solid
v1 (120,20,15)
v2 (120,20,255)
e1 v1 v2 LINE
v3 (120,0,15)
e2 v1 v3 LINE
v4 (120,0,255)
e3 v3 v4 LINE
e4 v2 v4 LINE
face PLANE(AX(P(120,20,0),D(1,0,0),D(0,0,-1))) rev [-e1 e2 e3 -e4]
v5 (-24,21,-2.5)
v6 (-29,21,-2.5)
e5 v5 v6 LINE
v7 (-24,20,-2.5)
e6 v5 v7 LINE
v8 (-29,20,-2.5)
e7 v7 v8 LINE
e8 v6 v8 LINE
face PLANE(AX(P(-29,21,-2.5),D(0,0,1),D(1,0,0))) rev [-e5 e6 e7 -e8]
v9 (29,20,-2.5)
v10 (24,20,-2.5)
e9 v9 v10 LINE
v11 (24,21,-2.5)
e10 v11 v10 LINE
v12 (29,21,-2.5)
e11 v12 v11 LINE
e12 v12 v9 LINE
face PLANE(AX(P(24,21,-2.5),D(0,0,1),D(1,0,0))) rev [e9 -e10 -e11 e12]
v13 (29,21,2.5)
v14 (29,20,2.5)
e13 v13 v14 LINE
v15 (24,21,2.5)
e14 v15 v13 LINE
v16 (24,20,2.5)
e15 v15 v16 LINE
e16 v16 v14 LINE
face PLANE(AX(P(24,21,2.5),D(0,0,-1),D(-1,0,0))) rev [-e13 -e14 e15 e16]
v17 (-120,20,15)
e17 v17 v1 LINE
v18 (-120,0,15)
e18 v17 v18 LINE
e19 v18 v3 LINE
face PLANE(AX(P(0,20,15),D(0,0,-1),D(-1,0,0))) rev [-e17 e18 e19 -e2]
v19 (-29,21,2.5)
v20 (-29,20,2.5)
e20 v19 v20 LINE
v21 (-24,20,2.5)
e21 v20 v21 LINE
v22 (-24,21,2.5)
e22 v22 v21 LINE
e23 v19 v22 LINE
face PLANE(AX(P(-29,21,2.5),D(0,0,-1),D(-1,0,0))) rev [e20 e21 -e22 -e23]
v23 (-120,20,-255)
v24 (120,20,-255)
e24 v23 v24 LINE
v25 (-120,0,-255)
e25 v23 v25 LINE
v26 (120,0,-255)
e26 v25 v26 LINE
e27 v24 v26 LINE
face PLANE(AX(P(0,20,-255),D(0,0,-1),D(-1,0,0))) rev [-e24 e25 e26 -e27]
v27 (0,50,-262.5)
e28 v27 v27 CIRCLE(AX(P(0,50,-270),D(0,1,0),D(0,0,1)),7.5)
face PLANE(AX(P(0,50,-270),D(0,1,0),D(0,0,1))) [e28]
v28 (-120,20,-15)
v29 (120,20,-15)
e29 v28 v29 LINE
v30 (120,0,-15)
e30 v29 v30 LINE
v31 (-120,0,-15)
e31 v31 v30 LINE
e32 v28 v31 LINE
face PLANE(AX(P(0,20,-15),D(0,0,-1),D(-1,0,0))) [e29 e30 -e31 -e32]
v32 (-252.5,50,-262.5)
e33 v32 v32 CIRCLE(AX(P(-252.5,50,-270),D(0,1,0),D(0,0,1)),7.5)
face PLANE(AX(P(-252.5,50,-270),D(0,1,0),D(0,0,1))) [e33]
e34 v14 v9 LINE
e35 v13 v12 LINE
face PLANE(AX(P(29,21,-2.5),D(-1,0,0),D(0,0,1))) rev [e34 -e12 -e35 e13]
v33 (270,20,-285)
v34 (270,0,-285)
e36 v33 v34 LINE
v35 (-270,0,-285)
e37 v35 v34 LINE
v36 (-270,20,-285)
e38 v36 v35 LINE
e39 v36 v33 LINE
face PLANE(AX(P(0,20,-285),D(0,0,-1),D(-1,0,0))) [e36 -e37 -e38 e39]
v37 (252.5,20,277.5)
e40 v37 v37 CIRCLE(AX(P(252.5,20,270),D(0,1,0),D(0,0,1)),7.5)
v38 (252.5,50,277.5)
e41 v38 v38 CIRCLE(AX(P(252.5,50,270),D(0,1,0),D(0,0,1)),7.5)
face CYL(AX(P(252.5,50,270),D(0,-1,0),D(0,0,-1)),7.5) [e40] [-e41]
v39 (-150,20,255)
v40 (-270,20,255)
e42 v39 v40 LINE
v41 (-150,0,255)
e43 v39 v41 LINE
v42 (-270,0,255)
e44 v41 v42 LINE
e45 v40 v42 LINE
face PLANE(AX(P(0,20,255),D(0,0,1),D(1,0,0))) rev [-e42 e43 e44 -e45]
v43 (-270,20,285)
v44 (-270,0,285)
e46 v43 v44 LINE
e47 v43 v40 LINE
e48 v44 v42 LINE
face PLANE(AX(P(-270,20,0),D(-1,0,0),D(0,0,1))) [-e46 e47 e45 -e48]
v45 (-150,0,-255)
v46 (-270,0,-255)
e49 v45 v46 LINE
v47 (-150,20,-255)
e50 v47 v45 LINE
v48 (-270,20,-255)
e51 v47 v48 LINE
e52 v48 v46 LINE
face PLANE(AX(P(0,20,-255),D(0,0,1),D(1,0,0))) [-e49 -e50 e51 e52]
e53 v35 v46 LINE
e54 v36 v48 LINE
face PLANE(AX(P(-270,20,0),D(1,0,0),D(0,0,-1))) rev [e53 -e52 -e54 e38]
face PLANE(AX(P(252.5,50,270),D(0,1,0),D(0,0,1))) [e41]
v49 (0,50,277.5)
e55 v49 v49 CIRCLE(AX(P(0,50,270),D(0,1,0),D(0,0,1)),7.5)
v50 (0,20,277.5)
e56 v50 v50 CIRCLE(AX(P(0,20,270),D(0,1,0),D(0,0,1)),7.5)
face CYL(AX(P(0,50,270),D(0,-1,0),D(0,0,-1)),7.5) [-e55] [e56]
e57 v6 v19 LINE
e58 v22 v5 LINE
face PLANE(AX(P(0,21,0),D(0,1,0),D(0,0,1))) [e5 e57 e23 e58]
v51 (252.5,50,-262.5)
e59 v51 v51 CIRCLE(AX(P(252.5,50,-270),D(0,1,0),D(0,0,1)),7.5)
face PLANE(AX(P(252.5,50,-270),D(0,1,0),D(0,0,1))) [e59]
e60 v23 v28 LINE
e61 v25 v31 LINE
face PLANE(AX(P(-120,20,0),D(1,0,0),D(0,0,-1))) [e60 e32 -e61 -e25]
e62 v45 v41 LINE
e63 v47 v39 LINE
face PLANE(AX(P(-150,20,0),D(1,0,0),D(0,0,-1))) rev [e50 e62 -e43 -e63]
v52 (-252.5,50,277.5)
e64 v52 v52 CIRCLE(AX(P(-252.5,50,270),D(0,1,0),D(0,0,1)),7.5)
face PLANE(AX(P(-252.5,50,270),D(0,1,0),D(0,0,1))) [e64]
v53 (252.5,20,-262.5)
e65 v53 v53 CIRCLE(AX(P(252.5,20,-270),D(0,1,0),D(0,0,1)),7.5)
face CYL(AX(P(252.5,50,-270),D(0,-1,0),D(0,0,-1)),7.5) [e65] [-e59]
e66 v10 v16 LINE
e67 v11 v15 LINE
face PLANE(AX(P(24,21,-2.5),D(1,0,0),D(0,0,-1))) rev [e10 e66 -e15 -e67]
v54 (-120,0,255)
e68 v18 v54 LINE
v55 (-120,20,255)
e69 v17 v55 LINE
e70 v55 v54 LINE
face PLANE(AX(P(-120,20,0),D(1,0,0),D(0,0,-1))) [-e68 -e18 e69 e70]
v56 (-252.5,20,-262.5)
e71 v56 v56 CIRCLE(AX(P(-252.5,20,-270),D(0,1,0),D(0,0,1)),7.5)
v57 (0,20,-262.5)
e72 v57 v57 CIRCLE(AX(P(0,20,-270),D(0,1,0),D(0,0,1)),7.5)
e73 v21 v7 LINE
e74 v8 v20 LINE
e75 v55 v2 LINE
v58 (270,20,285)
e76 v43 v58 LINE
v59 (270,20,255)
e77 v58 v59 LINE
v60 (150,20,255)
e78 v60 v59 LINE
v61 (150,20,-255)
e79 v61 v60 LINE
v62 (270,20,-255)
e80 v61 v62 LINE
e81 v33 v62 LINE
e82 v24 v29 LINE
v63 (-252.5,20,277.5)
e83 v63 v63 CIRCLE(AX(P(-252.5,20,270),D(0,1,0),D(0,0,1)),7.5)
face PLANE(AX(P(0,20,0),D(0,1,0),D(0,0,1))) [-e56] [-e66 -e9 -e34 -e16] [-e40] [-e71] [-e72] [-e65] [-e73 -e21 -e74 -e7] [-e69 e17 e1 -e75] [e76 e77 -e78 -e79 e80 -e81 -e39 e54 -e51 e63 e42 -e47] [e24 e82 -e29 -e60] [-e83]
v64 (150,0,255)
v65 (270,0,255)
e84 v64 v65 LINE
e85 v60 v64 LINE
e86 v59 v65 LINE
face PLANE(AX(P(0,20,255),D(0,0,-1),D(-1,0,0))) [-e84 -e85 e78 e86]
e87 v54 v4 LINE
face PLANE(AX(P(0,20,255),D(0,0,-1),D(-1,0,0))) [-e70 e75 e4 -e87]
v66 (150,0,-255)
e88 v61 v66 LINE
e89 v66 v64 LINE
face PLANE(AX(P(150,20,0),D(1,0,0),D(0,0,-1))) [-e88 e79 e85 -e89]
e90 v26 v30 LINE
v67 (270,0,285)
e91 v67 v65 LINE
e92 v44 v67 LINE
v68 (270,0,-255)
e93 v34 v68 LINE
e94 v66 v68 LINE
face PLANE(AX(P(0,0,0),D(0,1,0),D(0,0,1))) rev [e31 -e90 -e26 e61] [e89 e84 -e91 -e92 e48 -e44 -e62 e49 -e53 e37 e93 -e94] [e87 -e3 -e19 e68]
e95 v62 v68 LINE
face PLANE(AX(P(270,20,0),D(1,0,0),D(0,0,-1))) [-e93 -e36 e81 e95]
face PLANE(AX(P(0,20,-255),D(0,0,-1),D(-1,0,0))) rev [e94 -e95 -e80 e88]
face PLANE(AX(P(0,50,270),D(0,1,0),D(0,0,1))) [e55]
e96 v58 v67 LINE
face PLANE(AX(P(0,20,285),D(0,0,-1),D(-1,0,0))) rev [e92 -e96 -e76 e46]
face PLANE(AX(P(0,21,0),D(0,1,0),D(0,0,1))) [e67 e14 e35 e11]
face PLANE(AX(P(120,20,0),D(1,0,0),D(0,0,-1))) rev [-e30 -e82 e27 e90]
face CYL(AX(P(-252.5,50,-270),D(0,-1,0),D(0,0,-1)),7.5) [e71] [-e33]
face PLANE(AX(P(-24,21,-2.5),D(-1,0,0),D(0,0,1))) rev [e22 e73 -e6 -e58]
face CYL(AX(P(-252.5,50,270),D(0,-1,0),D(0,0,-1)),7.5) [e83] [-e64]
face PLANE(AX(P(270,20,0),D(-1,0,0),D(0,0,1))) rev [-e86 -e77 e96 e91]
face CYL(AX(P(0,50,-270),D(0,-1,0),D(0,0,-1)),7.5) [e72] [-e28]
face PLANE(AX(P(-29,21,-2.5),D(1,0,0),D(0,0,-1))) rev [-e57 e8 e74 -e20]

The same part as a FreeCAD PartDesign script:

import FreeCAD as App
import Part
import Sketcher
Q = App.Units.Quantity

doc = App.newDocument("Part")
body = doc.addObject("PartDesign::Body", "Body")

# Sketch on XZ plane
sketch1 = body.newObject("Sketcher::SketchObject", "Sketch")
sketch1.AttachmentSupport = (doc.getObject("XZ_Plane"), [""])
sketch1.MapMode = "FlatFace"
sketch1.addGeometry([
    Part.LineSegment(App.Vector(-150, -285, 0), App.Vector(-150, 285, 0)),  # 0
    Part.LineSegment(App.Vector(-150, 285, 0), App.Vector(150, 285, 0)),  # 1
    Part.LineSegment(App.Vector(150, 285, 0), App.Vector(150, -285, 0)),  # 2
    Part.LineSegment(App.Vector(150, -285, 0), App.Vector(-150, -285, 0)),  # 3
    Part.LineSegment(App.Vector(120, 255, 0), App.Vector(-120, 255, 0)),  # 4
    Part.LineSegment(App.Vector(-120, 255, 0), App.Vector(-120, 15, 0)),  # 5
    Part.LineSegment(App.Vector(-120, 15, 0), App.Vector(120, 15, 0)),  # 6
    Part.LineSegment(App.Vector(120, 15, 0), App.Vector(120, 255, 0)),  # 7
    Part.LineSegment(App.Vector(120, -15, 0), App.Vector(-120, -15, 0)),  # 8
    Part.LineSegment(App.Vector(-120, -15, 0), App.Vector(-120, -255, 0)),  # 9
    Part.LineSegment(App.Vector(-120, -255, 0), App.Vector(120, -255, 0)),  # 10
    Part.LineSegment(App.Vector(120, -255, 0), App.Vector(120, -15, 0)),  # 11
], False)
sketch1.addConstraint([
    Sketcher.Constraint("Coincident", 0, 2, 1, 1),
    Sketcher.Constraint("Coincident", 1, 2, 2, 1),
    Sketcher.Constraint("Coincident", 2, 2, 3, 1),
    Sketcher.Constraint("Coincident", 3, 2, 0, 1),
    Sketcher.Constraint("Coincident", 4, 2, 5, 1),
    Sketcher.Constraint("Coincident", 5, 2, 6, 1),
    Sketcher.Constraint("Coincident", 6, 2, 7, 1),
    Sketcher.Constraint("Coincident", 7, 2, 4, 1),
    Sketcher.Constraint("Coincident", 8, 2, 9, 1),
    Sketcher.Constraint("Coincident", 9, 2, 10, 1),
    Sketcher.Constraint("Coincident", 10, 2, 11, 1),
    Sketcher.Constraint("Coincident", 11, 2, 8, 1),
    Sketcher.Constraint("Vertical", 0),
    Sketcher.Constraint("Horizontal", 1),
    Sketcher.Constraint("Vertical", 2),
    Sketcher.Constraint("Horizontal", 3),
    Sketcher.Constraint("Horizontal", 4),
    Sketcher.Constraint("Vertical", 5),
    Sketcher.Constraint("Horizontal", 6),
    Sketcher.Constraint("Vertical", 7),
    Sketcher.Constraint("Horizontal", 8),
    Sketcher.Constraint("Vertical", 9),
    Sketcher.Constraint("Horizontal", 10),
    Sketcher.Constraint("Vertical", 11),
    Sketcher.Constraint("Symmetric", 0, 2, 2, 2, -1, 1),
    Sketcher.Constraint("Symmetric", 6, 2, 8, 2, -1, 1),
    Sketcher.Constraint("Symmetric", 4, 2, 10, 2, -1, 1),
    Sketcher.Constraint("Vertical", 5, 2, 8, 2),
    Sketcher.Constraint("Equal", 10, 5),
    Sketcher.Constraint("DistanceX", 1, 1, 1, 2, Q("300 mm")),
    Sketcher.Constraint("DistanceX", 4, 2, 4, 1, Q("240 mm")),
    Sketcher.Constraint("DistanceY", 0, 1, 0, 2, Q("570 mm")),
    Sketcher.Constraint("DistanceY", -1, 1, 4, 2, Q("255 mm")),
])
pad1 = body.newObject("PartDesign::Pad", "Pad")
pad1.Profile = sketch1
pad1.Length = 20
pad1.Reversed = True

# Sketch on XZ plane
sketch2 = body.newObject("Sketcher::SketchObject", "Sketch001")
sketch2.AttachmentSupport = (doc.getObject("XZ_Plane"), [""])
sketch2.MapMode = "FlatFace"
sketch2.addGeometry([
    Part.LineSegment(App.Vector(150, -285, 0), App.Vector(150, -255, 0)),  # 0
    Part.LineSegment(App.Vector(150, -255, 0), App.Vector(270, -255, 0)),  # 1
    Part.LineSegment(App.Vector(270, -255, 0), App.Vector(270, -285, 0)),  # 2
    Part.LineSegment(App.Vector(270, -285, 0), App.Vector(150, -285, 0)),  # 3
    Part.LineSegment(App.Vector(-270, -285, 0), App.Vector(-270, -255, 0)),  # 4
    Part.LineSegment(App.Vector(-270, -255, 0), App.Vector(-150, -255, 0)),  # 5
    Part.LineSegment(App.Vector(-150, -255, 0), App.Vector(-150, -285, 0)),  # 6
    Part.LineSegment(App.Vector(-150, -285, 0), App.Vector(-270, -285, 0)),  # 7
    Part.LineSegment(App.Vector(-270, 255, 0), App.Vector(-270, 285, 0)),  # 8
    Part.LineSegment(App.Vector(-270, 285, 0), App.Vector(-150, 285, 0)),  # 9
    Part.LineSegment(App.Vector(-150, 285, 0), App.Vector(-150, 255, 0)),  # 10
    Part.LineSegment(App.Vector(-150, 255, 0), App.Vector(-270, 255, 0)),  # 11
    Part.LineSegment(App.Vector(150, 255, 0), App.Vector(150, 285, 0)),  # 12
    Part.LineSegment(App.Vector(150, 285, 0), App.Vector(270, 285, 0)),  # 13
    Part.LineSegment(App.Vector(270, 285, 0), App.Vector(270, 255, 0)),  # 14
    Part.LineSegment(App.Vector(270, 255, 0), App.Vector(150, 255, 0)),  # 15
], False)
sketch2.addConstraint([
    Sketcher.Constraint("Coincident", 0, 2, 1, 1),
    Sketcher.Constraint("Coincident", 1, 2, 2, 1),
    Sketcher.Constraint("Coincident", 2, 2, 3, 1),
    Sketcher.Constraint("Coincident", 3, 2, 0, 1),
    Sketcher.Constraint("Coincident", 4, 2, 5, 1),
    Sketcher.Constraint("Coincident", 5, 2, 6, 1),
    Sketcher.Constraint("Coincident", 6, 2, 7, 1),
    Sketcher.Constraint("Coincident", 7, 2, 4, 1),
    Sketcher.Constraint("Coincident", 8, 2, 9, 1),
    Sketcher.Constraint("Coincident", 9, 2, 10, 1),
    Sketcher.Constraint("Coincident", 10, 2, 11, 1),
    Sketcher.Constraint("Coincident", 11, 2, 8, 1),
    Sketcher.Constraint("Coincident", 12, 2, 13, 1),
    Sketcher.Constraint("Coincident", 13, 2, 14, 1),
    Sketcher.Constraint("Coincident", 14, 2, 15, 1),
    Sketcher.Constraint("Coincident", 15, 2, 12, 1),
    Sketcher.Constraint("Vertical", 0),
    Sketcher.Constraint("Horizontal", 1),
    Sketcher.Constraint("Vertical", 2),
    Sketcher.Constraint("Horizontal", 3),
    Sketcher.Constraint("Vertical", 4),
    Sketcher.Constraint("Horizontal", 5),
    Sketcher.Constraint("Vertical", 6),
    Sketcher.Constraint("Horizontal", 7),
    Sketcher.Constraint("Vertical", 8),
    Sketcher.Constraint("Horizontal", 9),
    Sketcher.Constraint("Vertical", 10),
    Sketcher.Constraint("Horizontal", 11),
    Sketcher.Constraint("Vertical", 12),
    Sketcher.Constraint("Horizontal", 13),
    Sketcher.Constraint("Vertical", 14),
    Sketcher.Constraint("Horizontal", 15),
    Sketcher.Constraint("Symmetric", 2, 2, 8, 2, -1, 1),
    Sketcher.Constraint("Symmetric", 0, 2, 10, 2, -1, 1),
    Sketcher.Constraint("Symmetric", 6, 2, 12, 2, -1, 1),
    Sketcher.Constraint("Symmetric", 4, 2, 14, 2, -1, 1),
    Sketcher.Constraint("Symmetric", 1, 2, 4, 2, -2),
    Sketcher.Constraint("Symmetric", 3, 2, 6, 2, -2),
    Sketcher.Constraint("DistanceX", 1, 1, 1, 2, Q("120 mm")),
    Sketcher.Constraint("DistanceY", 0, 1, 0, 2, Q("30 mm")),
    Sketcher.Constraint("DistanceX", -1, 1, 0, 2, Q("150 mm")),
    Sketcher.Constraint("DistanceY", 0, 2, -1, 1, Q("255 mm")),
])
pad2 = body.newObject("PartDesign::Pad", "Pad001")
pad2.Profile = sketch2
pad2.Length = 20
pad2.Reversed = True

# Sketch on XZ plane
sketch3 = body.newObject("Sketcher::SketchObject", "Sketch002")
sketch3.AttachmentSupport = (doc.getObject("XZ_Plane"), [""])
sketch3.MapMode = "FlatFace"
sketch3.AttachmentOffset = App.Placement(App.Vector(0, 0, -20), App.Rotation())
sketch3.addGeometry([
    Part.Circle(App.Vector(0, -270, 0), App.Vector(0, 0, 1), 8),  # 0
    Part.Circle(App.Vector(252, -270, 0), App.Vector(0, 0, 1), 8),  # 1
    Part.Circle(App.Vector(-252, -270, 0), App.Vector(0, 0, 1), 8),  # 2
    Part.Circle(App.Vector(-252, 270, 0), App.Vector(0, 0, 1), 8),  # 3
    Part.Circle(App.Vector(252, 270, 0), App.Vector(0, 0, 1), 8),  # 4
    Part.Circle(App.Vector(0, 270, 0), App.Vector(0, 0, 1), 8),  # 5
], False)
sketch3.addConstraint([
    Sketcher.Constraint("Equal", 0, 1),
    Sketcher.Constraint("Equal", 1, 2),
    Sketcher.Constraint("Equal", 2, 3),
    Sketcher.Constraint("Equal", 3, 4),
    Sketcher.Constraint("Equal", 4, 5),
    Sketcher.Constraint("Symmetric", 1, 3, 3, 3, -1, 1),
    Sketcher.Constraint("Symmetric", 2, 3, 4, 3, -1, 1),
    Sketcher.Constraint("Symmetric", 0, 3, 5, 3, -1, 1),
    Sketcher.Constraint("Symmetric", 1, 3, 2, 3, -2),
    Sketcher.Constraint("PointOnObject", 0, 3, -2),
    Sketcher.Constraint("Horizontal", 0, 3, 1, 3),
    Sketcher.Constraint("Diameter", 0, Q("15 mm")),
    Sketcher.Constraint("DistanceY", 0, 3, -1, 1, Q("270 mm")),
    Sketcher.Constraint("DistanceX", 2, 3, 1, 3, Q("505 mm")),
])
pad3 = body.newObject("PartDesign::Pad", "Pad002")
pad3.Profile = sketch3
pad3.Length = 30
pad3.Reversed = True

# Sketch on XZ plane
sketch4 = body.newObject("Sketcher::SketchObject", "Sketch003")
sketch4.AttachmentSupport = (doc.getObject("XZ_Plane"), [""])
sketch4.MapMode = "FlatFace"
sketch4.AttachmentOffset = App.Placement(App.Vector(0, 0, -20), App.Rotation())
sketch4.addGeometry([
    Part.LineSegment(App.Vector(-29, -2, 0), App.Vector(-29, 2, 0)),  # 0
    Part.LineSegment(App.Vector(-29, 2, 0), App.Vector(-24, 2, 0)),  # 1
    Part.LineSegment(App.Vector(-24, 2, 0), App.Vector(-24, -2, 0)),  # 2
    Part.LineSegment(App.Vector(-24, -2, 0), App.Vector(-29, -2, 0)),  # 3
    Part.LineSegment(App.Vector(24, -2, 0), App.Vector(24, 2, 0)),  # 4
    Part.LineSegment(App.Vector(24, 2, 0), App.Vector(29, 2, 0)),  # 5
    Part.LineSegment(App.Vector(29, 2, 0), App.Vector(29, -2, 0)),  # 6
    Part.LineSegment(App.Vector(29, -2, 0), App.Vector(24, -2, 0)),  # 7
], False)
sketch4.addConstraint([
    Sketcher.Constraint("Coincident", 0, 2, 1, 1),
    Sketcher.Constraint("Coincident", 1, 2, 2, 1),
    Sketcher.Constraint("Coincident", 2, 2, 3, 1),
    Sketcher.Constraint("Coincident", 3, 2, 0, 1),
    Sketcher.Constraint("Coincident", 4, 2, 5, 1),
    Sketcher.Constraint("Coincident", 5, 2, 6, 1),
    Sketcher.Constraint("Coincident", 6, 2, 7, 1),
    Sketcher.Constraint("Coincident", 7, 2, 4, 1),
    Sketcher.Constraint("Vertical", 0),
    Sketcher.Constraint("Horizontal", 1),
    Sketcher.Constraint("Vertical", 2),
    Sketcher.Constraint("Horizontal", 3),
    Sketcher.Constraint("Vertical", 4),
    Sketcher.Constraint("Horizontal", 5),
    Sketcher.Constraint("Vertical", 6),
    Sketcher.Constraint("Horizontal", 7),
    Sketcher.Constraint("Symmetric", 2, 2, 4, 2, -1, 1),
    Sketcher.Constraint("Symmetric", 0, 2, 6, 2, -1, 1),
    Sketcher.Constraint("Horizontal", 1, 2, 4, 2),
    Sketcher.Constraint("Equal", 7, 0),
    Sketcher.Constraint("DistanceX", 1, 1, 1, 2, Q("5 mm")),
    Sketcher.Constraint("DistanceX", 0, 2, -1, 1, Q("29 mm")),
])
pad4 = body.newObject("PartDesign::Pad", "Pad003")
pad4.Profile = sketch4
pad4.Length = 1
pad4.Reversed = True

doc.recompute()
